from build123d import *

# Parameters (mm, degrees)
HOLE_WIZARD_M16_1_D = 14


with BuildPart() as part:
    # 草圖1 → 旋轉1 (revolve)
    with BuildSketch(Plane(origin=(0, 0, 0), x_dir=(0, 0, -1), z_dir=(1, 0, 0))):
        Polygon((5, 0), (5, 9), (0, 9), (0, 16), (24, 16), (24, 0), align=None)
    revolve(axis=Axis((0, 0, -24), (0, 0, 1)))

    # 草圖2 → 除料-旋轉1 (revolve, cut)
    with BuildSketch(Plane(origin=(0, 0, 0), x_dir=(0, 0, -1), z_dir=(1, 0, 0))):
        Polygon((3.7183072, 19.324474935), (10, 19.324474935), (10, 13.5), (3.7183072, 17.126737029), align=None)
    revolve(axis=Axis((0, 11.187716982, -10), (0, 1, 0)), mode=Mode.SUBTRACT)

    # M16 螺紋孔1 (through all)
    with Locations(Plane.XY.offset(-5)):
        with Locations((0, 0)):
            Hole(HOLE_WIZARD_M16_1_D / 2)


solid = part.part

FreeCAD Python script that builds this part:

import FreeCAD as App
import Part
import Sketcher
from FreeCAD import Vector
Q = App.Units.Quantity


def add_polygon(sketch, points):
    """Adds a closed chain of lines whose ends are joined by coincident constraints."""
    first, n = sketch.GeometryCount, len(points)
    for a, b in zip(points, points[1:] + points[:1]):
        sketch.addGeometry(Part.LineSegment(App.Vector(*a, 0), App.Vector(*b, 0)), False)
    for i in range(n):
        sketch.addConstraint(Sketcher.Constraint("Coincident", first + i, 2, first + (i + 1) % n, 1))

doc = App.newDocument("Part")
body = doc.addObject("PartDesign::Body", "Body")

sketch1 = body.newObject("Sketcher::SketchObject", "Sketch")
sketch1.AttachmentSupport = (doc.getObject("YZ_Plane"), [""])
sketch1.MapMode = "FlatFace"
add_polygon(sketch1, [(9, -5), (0, -5), (0, -24), (16, -24), (16, 0), (9, 0)])
sketch1.addConstraint(Sketcher.Constraint("Horizontal", 0))
sketch1.addConstraint(Sketcher.Constraint("Vertical", 1))
sketch1.addConstraint(Sketcher.Constraint("Horizontal", 2))
sketch1.addConstraint(Sketcher.Constraint("Vertical", 3))
sketch1.addConstraint(Sketcher.Constraint("Horizontal", 4))
sketch1.addConstraint(Sketcher.Constraint("Vertical", 5))
sketch1.addConstraint(Sketcher.Constraint("PointOnObject", 0, 2, -2))
sketch1.addConstraint(Sketcher.Constraint("PointOnObject", 3, 2, -1))
sketch1.addConstraint(Sketcher.Constraint("DistanceX", 0, 2, 0, 1, 9.0))
sketch1.addConstraint(Sketcher.Constraint("DistanceX", 2, 1, 2, 2, 16.0))
sketch1.addConstraint(Sketcher.Constraint("DistanceY", 1, 2, 1, 1, 19.0))
sketch1.addConstraint(Sketcher.Constraint("DistanceY", 3, 1, 3, 2, 24.0))
revolution = body.newObject("PartDesign::Revolution", "Revolution")
revolution.Profile = sketch1
revolution.ReferenceAxis = (sketch1, ["V_Axis"])
revolution.Angle = 360

sketch2 = body.newObject("Sketcher::SketchObject", "Sketch001")
sketch2.AttachmentSupport = (doc.getObject("YZ_Plane"), [""])
sketch2.MapMode = "FlatFace"
add_polygon(sketch2, [(19.3, -10), (19.3, -3.7), (17.1, -3.7), (13.5, -10)])
sketch2.addGeometry(Part.LineSegment(Vector(13.5, -10, 0), Vector(19.3, -10, 0)), True)
sketch2.addConstraint(Sketcher.Constraint("Vertical", 0))
sketch2.addConstraint(Sketcher.Constraint("Horizontal", 1))
sketch2.addConstraint(Sketcher.Constraint("Horizontal", 3))
sketch2.addConstraint(Sketcher.Constraint("Horizontal", 4))
sketch2.addConstraint(Sketcher.Constraint("Coincident", 4, 1, 2, 2))
sketch2.addConstraint(Sketcher.Constraint("Vertical", 0, 2, 4, 2))
sketch2.addConstraint(Sketcher.Constraint("Angle", 2, Q("-120 deg")))
sketch2.addConstraint(Sketcher.Constraint("DistanceY", 2, 2, -1, 1, 10.0))
sketch2.addConstraint(Sketcher.Constraint("DistanceX", -1, 1, 2, 2, 13.5))
sketch2.addConstraint(Sketcher.Constraint("DistanceX", 1, 2, 1, 1, 2.197738))
sketch2.addConstraint(Sketcher.Constraint("DistanceX", 3, 1, 3, 2, 5.824475))
groove = body.newObject("PartDesign::Groove", "Groove")
groove.Profile = sketch2
groove.ReferenceAxis = (sketch2, ["Axis0"])
groove.Angle = 360

sketch3 = body.newObject("Sketcher::SketchObject", "Sketch002")
sketch3.AttachmentSupport = (doc.getObject("XY_Plane"), [""])
sketch3.MapMode = "FlatFace"
sketch3.AttachmentOffset = App.Placement(Vector(0, 0, -5), App.Rotation())
sketch3.addGeometry(Part.Circle(Vector(0, 0, 0), Vector(0, 0, 1), 7), False)
sketch3.addConstraint(Sketcher.Constraint("Coincident", 0, 3, -1, 1))
sketch3.addConstraint(Sketcher.Constraint("Diameter", 0, 14.0))
doc.recompute()
hole = body.newObject("PartDesign::Hole", "Hole")
hole.Profile = sketch3
hole.ThreadType = "None"
hole.Diameter = 14
hole.DepthType = "ThroughAll"

doc.recompute()
